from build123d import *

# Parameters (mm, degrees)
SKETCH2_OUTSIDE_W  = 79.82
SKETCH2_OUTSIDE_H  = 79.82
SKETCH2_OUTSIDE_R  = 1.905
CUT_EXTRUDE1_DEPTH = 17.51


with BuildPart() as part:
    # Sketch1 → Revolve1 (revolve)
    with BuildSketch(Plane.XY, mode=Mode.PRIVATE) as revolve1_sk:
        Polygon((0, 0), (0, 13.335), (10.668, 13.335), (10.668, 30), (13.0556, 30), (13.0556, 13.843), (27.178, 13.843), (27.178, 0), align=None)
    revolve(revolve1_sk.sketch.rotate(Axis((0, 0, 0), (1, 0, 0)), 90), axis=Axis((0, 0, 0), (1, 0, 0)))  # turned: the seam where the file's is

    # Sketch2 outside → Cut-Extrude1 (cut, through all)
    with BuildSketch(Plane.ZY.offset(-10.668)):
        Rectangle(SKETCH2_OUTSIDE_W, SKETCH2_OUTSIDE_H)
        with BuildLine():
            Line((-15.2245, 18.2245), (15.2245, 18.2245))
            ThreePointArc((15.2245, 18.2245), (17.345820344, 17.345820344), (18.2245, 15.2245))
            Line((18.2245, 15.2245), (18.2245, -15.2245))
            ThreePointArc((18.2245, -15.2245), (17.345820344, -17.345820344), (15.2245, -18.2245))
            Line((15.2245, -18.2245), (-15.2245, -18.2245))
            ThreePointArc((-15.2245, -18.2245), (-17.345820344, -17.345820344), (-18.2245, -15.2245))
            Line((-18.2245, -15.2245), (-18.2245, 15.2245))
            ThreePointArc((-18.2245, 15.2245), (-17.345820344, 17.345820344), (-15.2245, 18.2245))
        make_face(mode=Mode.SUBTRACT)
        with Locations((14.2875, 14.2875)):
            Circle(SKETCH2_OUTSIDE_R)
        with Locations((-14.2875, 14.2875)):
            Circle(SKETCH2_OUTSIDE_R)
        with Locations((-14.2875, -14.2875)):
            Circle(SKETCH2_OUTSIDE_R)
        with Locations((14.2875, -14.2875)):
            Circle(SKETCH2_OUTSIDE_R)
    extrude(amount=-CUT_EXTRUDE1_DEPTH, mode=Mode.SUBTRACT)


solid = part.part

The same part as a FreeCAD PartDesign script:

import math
import FreeCAD as App
import Part
import Sketcher

V = App.Vector
Q = App.Units.Quantity

doc = App.newDocument("Part")
body = doc.addObject("PartDesign::Body", "Body")

sketch1 = body.newObject("Sketcher::SketchObject", "Sketch")
sketch1.AttachmentSupport = (doc.getObject("XY_Plane"), [""])
sketch1.MapMode = "FlatFace"
sketch1.addGeometry([
    Part.LineSegment(V(0, 13.3, 0), V(0, 0, 0)),
    Part.LineSegment(V(0, 0, 0), V(27.2, 0, 0)),
    Part.LineSegment(V(27.2, 0, 0), V(27.2, 13.8, 0)),
    Part.LineSegment(V(27.2, 13.8, 0), V(13.1, 13.8, 0)),
    Part.LineSegment(V(13.1, 13.8, 0), V(13.1, 30, 0)),
    Part.LineSegment(V(13.1, 30, 0), V(10.7, 30, 0)),
    Part.LineSegment(V(10.7, 30, 0), V(10.7, 13.3, 0)),
    Part.LineSegment(V(10.7, 13.3, 0), V(0, 13.3, 0)),
], False)
sketch1.addConstraint([
    Sketcher.Constraint("Coincident", 0, 2, 1, 1),
    Sketcher.Constraint("Coincident", 1, 2, 2, 1),
    Sketcher.Constraint("Coincident", 2, 2, 3, 1),
    Sketcher.Constraint("Coincident", 3, 2, 4, 1),
    Sketcher.Constraint("Coincident", 4, 2, 5, 1),
    Sketcher.Constraint("Coincident", 5, 2, 6, 1),
    Sketcher.Constraint("Coincident", 6, 2, 7, 1),
    Sketcher.Constraint("Coincident", 7, 2, 0, 1),
    Sketcher.Constraint("Vertical", 0),
    Sketcher.Constraint("Horizontal", 1),
    Sketcher.Constraint("Vertical", 2),
    Sketcher.Constraint("Horizontal", 3),
    Sketcher.Constraint("Vertical", 4),
    Sketcher.Constraint("Horizontal", 5),
    Sketcher.Constraint("Vertical", 6),
    Sketcher.Constraint("Horizontal", 7),
    Sketcher.Constraint("Coincident", 0, 2, -1, 1),
    Sketcher.Constraint("DistanceX", 1, 1, 1, 2, Q("1.07 in")),
    Sketcher.Constraint("DistanceX", 7, 2, 7, 1, Q("0.42 in")),
    Sketcher.Constraint("DistanceX", 3, 2, 3, 1, Q("0.556 in")),
    Sketcher.Constraint("DistanceY", 0, 2, 0, 1, Q("0.525 in")),
    Sketcher.Constraint("DistanceY", 2, 1, 2, 2, Q("0.545 in")),
    Sketcher.Constraint("DistanceY", 4, 1, 4, 2, Q("16.157 mm")),
])
revolution = body.newObject("PartDesign::Revolution", "Revolution")
revolution.Profile = sketch1
revolution.ReferenceAxis = (sketch1, ["H_Axis"])
revolution.Angle = 360

sketch2 = body.newObject("Sketcher::SketchObject", "Sketch001")
sketch2.AttachmentSupport = (doc.getObject("YZ_Plane"), [""])
sketch2.MapMode = "FlatFace"
sketch2.AttachmentOffset = App.Placement(V(0, 0, 0.42 * 25.4), App.Rotation())
sketch2.addGeometry([
    Part.LineSegment(V(39.9, -39.9, 0), V(-39.9, -39.9, 0)),
    Part.LineSegment(V(-39.9, -39.9, 0), V(-39.9, 39.9, 0)),
    Part.LineSegment(V(-39.9, 39.9, 0), V(39.9, 39.9, 0)),
    Part.LineSegment(V(39.9, 39.9, 0), V(39.9, -39.9, 0)),
    Part.ArcOfCircle(Part.Circle(V(15.2, -15.2, 0), V(0, 0, 1), 3), math.radians(-90), math.radians(0)),
    Part.LineSegment(V(18.2, -15.2, 0), V(18.2, 15.2, 0)),
    Part.ArcOfCircle(Part.Circle(V(15.2, 15.2, 0), V(0, 0, 1), 3), math.radians(0), math.radians(90)),
    Part.LineSegment(V(15.2, 18.2, 0), V(-15.2, 18.2, 0)),
    Part.ArcOfCircle(Part.Circle(V(-15.2, 15.2, 0), V(0, 0, 1), 3), math.radians(90), math.radians(180)),
    Part.LineSegment(V(-18.2, 15.2, 0), V(-18.2, -15.2, 0)),
    Part.ArcOfCircle(Part.Circle(V(-15.2, -15.2, 0), V(0, 0, 1), 3), math.radians(180), math.radians(270)),
    Part.LineSegment(V(-15.2, -18.2, 0), V(15.2, -18.2, 0)),
    Part.Circle(V(14.3, 14.3, 0), V(0, 0, 1), 1.9),
    Part.Circle(V(14.3, -14.3, 0), V(0, 0, 1), 1.9),
    Part.Circle(V(-14.3, -14.3, 0), V(0, 0, 1), 1.9),
    Part.Circle(V(-14.3, 14.3, 0), V(0, 0, 1), 1.9),
], False)
sketch2.addConstraint([
    Sketcher.Constraint("Coincident", 0, 2, 1, 1),
    Sketcher.Constraint("Coincident", 1, 2, 2, 1),
    Sketcher.Constraint("Coincident", 2, 2, 3, 1),
    Sketcher.Constraint("Coincident", 3, 2, 0, 1),
    Sketcher.Constraint("Tangent", 4, 2, 5, 1),
    Sketcher.Constraint("Tangent", 5, 2, 6, 1),
    Sketcher.Constraint("Tangent", 6, 2, 7, 1),
    Sketcher.Constraint("Tangent", 7, 2, 8, 1),
    Sketcher.Constraint("Tangent", 8, 2, 9, 1),
    Sketcher.Constraint("Tangent", 9, 2, 10, 1),
    Sketcher.Constraint("Tangent", 10, 2, 11, 1),
    Sketcher.Constraint("Tangent", 11, 2, 4, 1),
    Sketcher.Constraint("Horizontal", 0),
    Sketcher.Constraint("Vertical", 1),
    Sketcher.Constraint("Horizontal", 2),
    Sketcher.Constraint("Vertical", 3),
    Sketcher.Constraint("Vertical", 5),
    Sketcher.Constraint("Horizontal", 7),
    Sketcher.Constraint("Vertical", 9),
    Sketcher.Constraint("Horizontal", 11),
    Sketcher.Constraint("Equal", 4, 6),
    Sketcher.Constraint("Equal", 6, 8),
    Sketcher.Constraint("Equal", 8, 10),
    Sketcher.Constraint("Equal", 12, 13),
    Sketcher.Constraint("Equal", 13, 14),
    Sketcher.Constraint("Equal", 14, 15),
    Sketcher.Constraint("Symmetric", 4, 3, 8, 3, -1, 1),
    Sketcher.Constraint("Symmetric", 12, 3, 14, 3, -1, 1),
    Sketcher.Constraint("Symmetric", 13, 3, 15, 3, -1, 1),
    Sketcher.Constraint("Symmetric", 0, 2, 2, 2, -1, 1),
    Sketcher.Constraint("Symmetric", 13, 3, 14, 3, -2),
    Sketcher.Constraint("Equal", 2, 1),
    Sketcher.Constraint("Equal", 11, 5),
    Sketcher.Constraint("Diameter", 12, Q("0.15 in")),
    Sketcher.Constraint("Radius", 4, Q("3 mm")),
    Sketcher.Constraint("DistanceX", 14, 3, 4, 2, Q("1.28 in")),
    Sketcher.Constraint("DistanceX", -1, 1, 12, 3, Q("0.5625 in")),
    Sketcher.Constraint("DistanceY", -1, 1, 12, 3, Q("0.5625 in")),
    Sketcher.Constraint("DistanceX", 0, 2, 0, 1, Q("79.82 mm")),
])
pocket1 = body.newObject("PartDesign::Pocket", "Pocket")
pocket1.Profile = sketch2
pocket1.Type = "ThroughAll"
pocket1.Reversed = True

doc.recompute()
